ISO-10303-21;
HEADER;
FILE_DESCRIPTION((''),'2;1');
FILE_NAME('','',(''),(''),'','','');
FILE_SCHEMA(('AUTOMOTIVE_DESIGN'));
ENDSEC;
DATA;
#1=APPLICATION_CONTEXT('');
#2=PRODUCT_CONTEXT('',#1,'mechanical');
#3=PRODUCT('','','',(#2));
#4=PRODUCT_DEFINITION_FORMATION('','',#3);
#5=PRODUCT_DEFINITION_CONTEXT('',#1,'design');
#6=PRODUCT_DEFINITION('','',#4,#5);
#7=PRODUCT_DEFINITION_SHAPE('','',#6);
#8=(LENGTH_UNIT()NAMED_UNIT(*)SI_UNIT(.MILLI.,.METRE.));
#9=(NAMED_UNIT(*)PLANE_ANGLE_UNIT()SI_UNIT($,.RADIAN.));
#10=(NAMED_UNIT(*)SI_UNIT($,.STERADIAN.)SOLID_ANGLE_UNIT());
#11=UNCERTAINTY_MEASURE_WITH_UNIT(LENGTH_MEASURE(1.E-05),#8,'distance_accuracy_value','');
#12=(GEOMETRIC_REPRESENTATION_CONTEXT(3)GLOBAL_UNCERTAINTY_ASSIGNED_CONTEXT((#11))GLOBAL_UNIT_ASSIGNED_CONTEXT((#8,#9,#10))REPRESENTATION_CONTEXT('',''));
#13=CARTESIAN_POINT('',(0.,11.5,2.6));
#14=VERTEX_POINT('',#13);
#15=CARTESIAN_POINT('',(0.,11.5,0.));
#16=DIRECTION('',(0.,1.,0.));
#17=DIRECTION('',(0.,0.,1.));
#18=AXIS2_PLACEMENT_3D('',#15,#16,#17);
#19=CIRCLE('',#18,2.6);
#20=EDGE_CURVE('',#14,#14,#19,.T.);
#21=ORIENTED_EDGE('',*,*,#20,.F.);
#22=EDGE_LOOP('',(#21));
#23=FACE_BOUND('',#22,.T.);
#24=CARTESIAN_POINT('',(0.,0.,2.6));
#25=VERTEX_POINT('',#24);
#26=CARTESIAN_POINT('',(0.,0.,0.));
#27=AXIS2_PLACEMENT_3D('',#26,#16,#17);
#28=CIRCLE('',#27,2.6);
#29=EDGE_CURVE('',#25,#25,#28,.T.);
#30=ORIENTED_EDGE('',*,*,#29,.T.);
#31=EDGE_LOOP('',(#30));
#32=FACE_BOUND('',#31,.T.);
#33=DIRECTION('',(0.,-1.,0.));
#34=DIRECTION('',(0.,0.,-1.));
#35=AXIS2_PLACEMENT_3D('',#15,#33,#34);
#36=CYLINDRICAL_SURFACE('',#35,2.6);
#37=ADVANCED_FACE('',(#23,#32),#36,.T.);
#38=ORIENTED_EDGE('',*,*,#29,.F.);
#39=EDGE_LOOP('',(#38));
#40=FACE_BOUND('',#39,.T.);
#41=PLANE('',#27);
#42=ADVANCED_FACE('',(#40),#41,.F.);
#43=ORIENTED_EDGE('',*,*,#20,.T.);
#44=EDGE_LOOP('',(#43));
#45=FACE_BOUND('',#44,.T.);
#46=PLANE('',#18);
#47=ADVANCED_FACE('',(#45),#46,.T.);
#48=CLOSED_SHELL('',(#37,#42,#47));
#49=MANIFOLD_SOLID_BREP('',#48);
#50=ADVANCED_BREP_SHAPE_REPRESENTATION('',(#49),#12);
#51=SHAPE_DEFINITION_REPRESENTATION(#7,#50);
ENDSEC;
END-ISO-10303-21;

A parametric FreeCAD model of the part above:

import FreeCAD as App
import Part
import Sketcher
from FreeCAD import Vector
Q = App.Units.Quantity

doc = App.newDocument("Part")
params = doc.addObject("Spreadsheet::Sheet", "Params")
for row, (alias, value) in enumerate([
    ("sketch1_diameter", "5.2 mm"),
    ("pad1_length", "11.5 mm"),
], start=1):
    params.set(f"A{row}", alias)
    params.set(f"B{row}", "=" + value)
    params.setAlias(f"B{row}", alias)

body = doc.addObject("PartDesign::Body", "Body")

# Sketch on XZ plane
sketch1 = doc.addObject("Sketcher::SketchObject", "Sketch")
body.addObject(sketch1)
sketch1.AttachmentSupport = (doc.XZ_Plane, [""])
sketch1.MapMode = "FlatFace"
sketch1.addGeometry(Part.Circle(Vector(0, 0, 0), Vector(0, 0, 1), 2.6), False)
sketch1.addConstraint([
    Sketcher.Constraint("Coincident", 0, 3, -1, 1),
    Sketcher.Constraint("Diameter", 0, Q("5.2 mm")),
])
sketch1.setExpression("Constraints[1]", "Params.sketch1_diameter")
pad1 = doc.addObject("PartDesign::Pad", "Pad")
body.addObject(pad1)
pad1.Profile = sketch1
pad1.setExpression("Length", "Params.pad1_length")
pad1.Reversed = True

doc.recompute()
